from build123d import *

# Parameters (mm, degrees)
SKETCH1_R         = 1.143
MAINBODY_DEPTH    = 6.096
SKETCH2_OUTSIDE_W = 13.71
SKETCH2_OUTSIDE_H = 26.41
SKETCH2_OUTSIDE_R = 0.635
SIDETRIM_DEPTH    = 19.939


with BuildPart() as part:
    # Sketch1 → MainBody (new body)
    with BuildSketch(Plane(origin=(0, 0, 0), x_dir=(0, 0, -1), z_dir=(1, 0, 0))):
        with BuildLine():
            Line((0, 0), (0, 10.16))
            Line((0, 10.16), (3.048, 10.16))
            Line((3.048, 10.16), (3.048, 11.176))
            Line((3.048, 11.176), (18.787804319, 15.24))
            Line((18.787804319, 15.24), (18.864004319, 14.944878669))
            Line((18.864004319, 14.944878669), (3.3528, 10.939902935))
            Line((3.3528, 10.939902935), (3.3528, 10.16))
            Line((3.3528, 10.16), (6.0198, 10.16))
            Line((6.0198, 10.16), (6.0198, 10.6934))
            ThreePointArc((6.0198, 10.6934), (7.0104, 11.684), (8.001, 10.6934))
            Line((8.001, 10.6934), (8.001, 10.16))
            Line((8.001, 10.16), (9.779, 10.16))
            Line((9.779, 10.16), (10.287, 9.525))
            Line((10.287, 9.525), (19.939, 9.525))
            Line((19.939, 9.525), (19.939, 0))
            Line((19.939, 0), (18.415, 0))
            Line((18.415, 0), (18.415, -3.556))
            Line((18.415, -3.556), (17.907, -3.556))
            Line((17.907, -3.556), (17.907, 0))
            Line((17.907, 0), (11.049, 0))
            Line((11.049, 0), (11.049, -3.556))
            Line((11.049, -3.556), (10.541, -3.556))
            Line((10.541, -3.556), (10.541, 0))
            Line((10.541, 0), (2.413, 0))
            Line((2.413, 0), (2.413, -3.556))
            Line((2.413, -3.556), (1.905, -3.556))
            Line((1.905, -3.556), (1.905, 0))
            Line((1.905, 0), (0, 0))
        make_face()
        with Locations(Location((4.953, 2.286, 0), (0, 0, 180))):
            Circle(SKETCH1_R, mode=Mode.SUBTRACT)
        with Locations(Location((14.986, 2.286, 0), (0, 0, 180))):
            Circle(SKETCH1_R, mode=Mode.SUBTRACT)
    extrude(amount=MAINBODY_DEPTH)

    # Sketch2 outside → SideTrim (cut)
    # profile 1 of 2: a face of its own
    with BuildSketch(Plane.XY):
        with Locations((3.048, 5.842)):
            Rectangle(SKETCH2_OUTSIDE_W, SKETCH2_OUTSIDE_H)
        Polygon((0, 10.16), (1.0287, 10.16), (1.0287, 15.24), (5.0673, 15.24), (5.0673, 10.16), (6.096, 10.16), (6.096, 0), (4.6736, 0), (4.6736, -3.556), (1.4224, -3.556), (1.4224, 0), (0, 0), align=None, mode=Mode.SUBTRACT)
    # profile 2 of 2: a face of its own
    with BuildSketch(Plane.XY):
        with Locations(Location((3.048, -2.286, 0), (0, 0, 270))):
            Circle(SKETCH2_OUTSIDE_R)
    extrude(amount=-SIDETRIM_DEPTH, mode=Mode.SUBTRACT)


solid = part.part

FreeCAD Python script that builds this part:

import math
import FreeCAD as App
import Part
import Sketcher

V = App.Vector
Q = App.Units.Quantity


def add_polygon(sketch, points):
    """Adds a closed chain of lines whose ends are joined by coincident constraints."""
    first, n = sketch.GeometryCount, len(points)
    for a, b in zip(points, points[1:] + points[:1]):
        sketch.addGeometry(Part.LineSegment(App.Vector(*a, 0), App.Vector(*b, 0)), False)
    for i in range(n):
        sketch.addConstraint(Sketcher.Constraint("Coincident", first + i, 2, first + (i + 1) % n, 1))

doc = App.newDocument("Part")
body = doc.addObject("PartDesign::Body", "Body")

sketch1 = body.newObject("Sketcher::SketchObject", "Sketch")
sketch1.AttachmentSupport = (doc.getObject("YZ_Plane"), [""])
sketch1.MapMode = "FlatFace"
sketch1.addGeometry([
    Part.LineSegment(V(10.16, 0, 0), V(0, 0, 0)),
    Part.LineSegment(V(0, 0, 0), V(0, -1.91, 0)),
    Part.LineSegment(V(0, -1.91, 0), V(-3.56, -1.91, 0)),
    Part.LineSegment(V(-3.56, -1.91, 0), V(-3.56, -2.41, 0)),
    Part.LineSegment(V(-3.56, -2.41, 0), V(0, -2.41, 0)),
    Part.LineSegment(V(0, -2.41, 0), V(0, -10.54, 0)),
    Part.LineSegment(V(0, -10.54, 0), V(-3.56, -10.54, 0)),
    Part.LineSegment(V(-3.56, -10.54, 0), V(-3.56, -11.05, 0)),
    Part.LineSegment(V(-3.56, -11.05, 0), V(0, -11.05, 0)),
    Part.LineSegment(V(0, -11.05, 0), V(0, -17.91, 0)),
    Part.LineSegment(V(0, -17.91, 0), V(-3.56, -17.91, 0)),
    Part.LineSegment(V(-3.56, -17.91, 0), V(-3.56, -18.41, 0)),
    Part.LineSegment(V(-3.56, -18.41, 0), V(0, -18.41, 0)),
    Part.LineSegment(V(0, -18.41, 0), V(0, -19.94, 0)),
    Part.LineSegment(V(0, -19.94, 0), V(9.53, -19.94, 0)),
    Part.LineSegment(V(9.53, -19.94, 0), V(9.53, -10.29, 0)),
    Part.LineSegment(V(9.53, -10.29, 0), V(10.16, -9.78, 0)),
    Part.LineSegment(V(10.16, -9.78, 0), V(10.16, -8, 0)),
    Part.LineSegment(V(10.16, -8, 0), V(10.69, -8, 0)),
    Part.ArcOfCircle(Part.Circle(V(10.69, -7.01, 0), V(0, 0, 1), 0.99), math.radians(-90), math.radians(90)),
    Part.LineSegment(V(10.69, -6.02, 0), V(10.16, -6.02, 0)),
    Part.LineSegment(V(10.16, -6.02, 0), V(10.16, -3.35, 0)),
    Part.LineSegment(V(10.16, -3.35, 0), V(10.94, -3.35, 0)),
    Part.LineSegment(V(10.94, -3.35, 0), V(14.94, -18.86, 0)),
    Part.LineSegment(V(14.94, -18.86, 0), V(15.24, -18.79, 0)),
    Part.LineSegment(V(15.24, -18.79, 0), V(11.18, -3.05, 0)),
    Part.LineSegment(V(11.18, -3.05, 0), V(10.16, -3.05, 0)),
    Part.LineSegment(V(10.16, -3.05, 0), V(10.16, 0, 0)),
    Part.Circle(V(2.29, -14.99, 0), V(0, 0, 1), 1.14),
    Part.Circle(V(2.29, -4.95, 0), V(0, 0, 1), 1.14),
], False)
sketch1.addConstraint([
    Sketcher.Constraint("Coincident", 0, 2, 1, 1),
    Sketcher.Constraint("Coincident", 1, 2, 2, 1),
    Sketcher.Constraint("Coincident", 2, 2, 3, 1),
    Sketcher.Constraint("Coincident", 3, 2, 4, 1),
    Sketcher.Constraint("Coincident", 4, 2, 5, 1),
    Sketcher.Constraint("Coincident", 5, 2, 6, 1),
    Sketcher.Constraint("Coincident", 6, 2, 7, 1),
    Sketcher.Constraint("Coincident", 7, 2, 8, 1),
    Sketcher.Constraint("Coincident", 8, 2, 9, 1),
    Sketcher.Constraint("Coincident", 9, 2, 10, 1),
    Sketcher.Constraint("Coincident", 10, 2, 11, 1),
    Sketcher.Constraint("Coincident", 11, 2, 12, 1),
    Sketcher.Constraint("Coincident", 12, 2, 13, 1),
    Sketcher.Constraint("Coincident", 13, 2, 14, 1),
    Sketcher.Constraint("Coincident", 14, 2, 15, 1),
    Sketcher.Constraint("Coincident", 15, 2, 16, 1),
    Sketcher.Constraint("Coincident", 16, 2, 17, 1),
    Sketcher.Constraint("Coincident", 17, 2, 18, 1),
    Sketcher.Constraint("Tangent", 18, 2, 19, 1),
    Sketcher.Constraint("Tangent", 19, 2, 20, 1),
    Sketcher.Constraint("Coincident", 20, 2, 21, 1),
    Sketcher.Constraint("Coincident", 21, 2, 22, 1),
    Sketcher.Constraint("Coincident", 22, 2, 23, 1),
    Sketcher.Constraint("Coincident", 23, 2, 24, 1),
    Sketcher.Constraint("Coincident", 24, 2, 25, 1),
    Sketcher.Constraint("Coincident", 25, 2, 26, 1),
    Sketcher.Constraint("Coincident", 26, 2, 27, 1),
    Sketcher.Constraint("Coincident", 27, 2, 0, 1),
    Sketcher.Constraint("Horizontal", 0),
    Sketcher.Constraint("Vertical", 1),
    Sketcher.Constraint("Horizontal", 2),
    Sketcher.Constraint("Vertical", 3),
    Sketcher.Constraint("Horizontal", 4),
    Sketcher.Constraint("Vertical", 5),
    Sketcher.Constraint("Horizontal", 6),
    Sketcher.Constraint("Vertical", 7),
    Sketcher.Constraint("Horizontal", 8),
    Sketcher.Constraint("Vertical", 9),
    Sketcher.Constraint("Horizontal", 10),
    Sketcher.Constraint("Vertical", 11),
    Sketcher.Constraint("Horizontal", 12),
    Sketcher.Constraint("Vertical", 13),
    Sketcher.Constraint("Horizontal", 14),
    Sketcher.Constraint("Vertical", 15),
    Sketcher.Constraint("Vertical", 17),
    Sketcher.Constraint("Horizontal", 18),
    Sketcher.Constraint("Horizontal", 20),
    Sketcher.Constraint("Vertical", 21),
    Sketcher.Constraint("Horizontal", 22),
    Sketcher.Constraint("Horizontal", 26),
    Sketcher.Constraint("Vertical", 27),
    Sketcher.Constraint("Coincident", 0, 2, -1, 1),
    Sketcher.Constraint("Equal", 28, 29),
    Sketcher.Constraint("PointOnObject", 4, 2, -2),
    Sketcher.Constraint("PointOnObject", 8, 2, -2),
    Sketcher.Constraint("PointOnObject", 12, 2, -2),
    Sketcher.Constraint("Perpendicular", 23, 24),
    Sketcher.Constraint("Perpendicular", 24, 25),
    Sketcher.Constraint("Vertical", 28, 3, 29, 3),
    Sketcher.Constraint("Vertical", 3, 2, 6, 2),
    Sketcher.Constraint("Vertical", 7, 2, 10, 2),
    Sketcher.Constraint("Vertical", 17, 2, 20, 2),
    Sketcher.Constraint("Vertical", 21, 2, 26, 2),
    Sketcher.Constraint("Equal", 3, 7),
    Sketcher.Constraint("Equal", 7, 11),
    Sketcher.Constraint("Diameter", 28, Q("0.09 in")),
    Sketcher.Constraint("DistanceX", 0, 2, 0, 1, Q("0.4 in")),
    Sketcher.Constraint("Radius", 19, Q("0.039 in")),
    Sketcher.Constraint("DistanceX", 2, 2, 2, 1, Q("0.14 in")),
    Sketcher.Constraint("DistanceX", 26, 2, 26, 1, Q("0.04 in")),
    Sketcher.Constraint("DistanceY", 3, 2, 3, 1, Q("0.02 in")),
    Sketcher.Constraint("DistanceY", 5, 2, 5, 1, Q("0.32 in")),
    Sketcher.Constraint("DistanceY", 9, 2, 9, 1, Q("0.27 in")),
    Sketcher.Constraint("DistanceY", 13, 2, 13, 1, Q("0.06 in")),
    Sketcher.Constraint("DistanceY", 15, 1, 15, 2, Q("0.38 in")),
    Sketcher.Constraint("DistanceY", 17, 1, 17, 2, Q("0.07 in")),
    Sketcher.Constraint("DistanceY", 27, 1, 27, 2, Q("0.12 in")),
    Sketcher.Constraint("DistanceX", -1, 1, 24, 2, Q("0.6 in")),
    Sketcher.Constraint("DistanceY", 29, 3, 3, 2, Q("0.1 in")),
    Sketcher.Constraint("DistanceY", 14, 2, 16, 2, Q("0.4 in")),
    Sketcher.Constraint("Distance", 25, Q("0.64 in")),
    Sketcher.Constraint("DistanceX", 14, 1, 14, 2, Q("0.375 in")),
    Sketcher.Constraint("DistanceX", 18, 1, 18, 2, Q("0.021 in")),
    Sketcher.Constraint("DistanceY", 1, 2, 1, 1, Q("0.075 in")),
    Sketcher.Constraint("DistanceY", 21, 1, 21, 2, Q("0.105 in")),
    Sketcher.Constraint("DistanceX", -1, 1, 28, 3, Q("0.09 in")),
    Sketcher.Constraint("DistanceY", 28, 3, -1, 1, Q("0.59 in")),
    Sketcher.Constraint("Distance", 24, Q("0.012 in")),
])
pad1 = body.newObject("PartDesign::Pad", "Pad")
pad1.Profile = sketch1
pad1.Length = Q("0.24 in")

sketch2 = body.newObject("Sketcher::SketchObject", "Sketch001")
sketch2.AttachmentSupport = (doc.getObject("XY_Plane"), [""])
sketch2.MapMode = "FlatFace"
add_polygon(sketch2, [(-3.8, 19), (-3.8, -7.4), (9.9, -7.4), (9.9, 19)])
add_polygon(sketch2, [(0, 0), (0, 10.2), (1, 10.2), (1, 15.2), (5.1, 15.2), (5.1, 10.2), (6.1, 10.2), (6.1, 0), (4.7, 0), (4.7, -3.6), (1.4, -3.6), (1.4, 0)])
sketch2.addGeometry(Part.Circle(V(3, -2.3, 0), V(0, 0, 1), 0.6), False)
sketch2.addConstraint([
    Sketcher.Constraint("Vertical", 0),
    Sketcher.Constraint("Horizontal", 1),
    Sketcher.Constraint("Vertical", 2),
    Sketcher.Constraint("Horizontal", 3),
    Sketcher.Constraint("Vertical", 4),
    Sketcher.Constraint("Horizontal", 5),
    Sketcher.Constraint("Vertical", 6),
    Sketcher.Constraint("Horizontal", 7),
    Sketcher.Constraint("Vertical", 8),
    Sketcher.Constraint("Horizontal", 9),
    Sketcher.Constraint("Vertical", 10),
    Sketcher.Constraint("Horizontal", 11),
    Sketcher.Constraint("Vertical", 12),
    Sketcher.Constraint("Horizontal", 13),
    Sketcher.Constraint("Vertical", 14),
    Sketcher.Constraint("Horizontal", 15),
    Sketcher.Constraint("Coincident", 15, 2, -1, 1),
    Sketcher.Constraint("PointOnObject", 10, 2, -1),
    Sketcher.Constraint("Horizontal", 5, 2, 8, 2),
    Sketcher.Constraint("Equal", 5, 9),
    Sketcher.Constraint("Equal", 11, 15),
    Sketcher.Constraint("Diameter", 16, Q("0.05 in")),
    Sketcher.Constraint("DistanceY", 4, 1, 4, 2, Q("0.4 in")),
    Sketcher.Constraint("DistanceY", 6, 1, 6, 2, Q("0.2 in")),
    Sketcher.Constraint("DistanceY", 12, 2, 12, 1, Q("0.14 in")),
    Sketcher.Constraint("DistanceX", 7, 1, 7, 2, Q("0.159 in")),
    Sketcher.Constraint("DistanceX", 11, 2, 11, 1, Q("0.056 in")),
    Sketcher.Constraint("DistanceX", 13, 2, 13, 1, Q("0.128 in")),
    Sketcher.Constraint("DistanceX", -1, 1, 16, 3, Q("0.12 in")),
    Sketcher.Constraint("DistanceY", 16, 3, -1, 1, Q("0.09 in")),
    Sketcher.Constraint("DistanceX", 1, 1, 1, 2, Q("13.71 mm")),
    Sketcher.Constraint("DistanceY", 0, 2, 0, 1, Q("26.41 mm")),
    Sketcher.Constraint("DistanceX", 0, 2, -1, 1, Q("3.807 mm")),
    Sketcher.Constraint("DistanceY", 0, 2, -1, 1, Q("7.363 mm")),
])
pocket1 = body.newObject("PartDesign::Pocket", "Pocket")
pocket1.Profile = sketch2
pocket1.Length = Q("0.785 in")

doc.recompute()
